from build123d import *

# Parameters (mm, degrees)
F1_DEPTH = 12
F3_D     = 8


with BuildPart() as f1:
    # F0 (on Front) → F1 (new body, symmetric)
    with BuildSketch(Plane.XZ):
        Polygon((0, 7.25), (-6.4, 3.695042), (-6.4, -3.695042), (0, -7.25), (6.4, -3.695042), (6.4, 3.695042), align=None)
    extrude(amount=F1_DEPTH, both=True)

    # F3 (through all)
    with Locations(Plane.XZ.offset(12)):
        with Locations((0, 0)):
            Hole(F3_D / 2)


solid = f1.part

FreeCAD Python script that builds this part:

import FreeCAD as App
import Part
import Sketcher

V = App.Vector


def add_polygon(sketch, points):
    """Adds a closed chain of lines whose ends are joined by coincident constraints."""
    first, n = sketch.GeometryCount, len(points)
    for a, b in zip(points, points[1:] + points[:1]):
        sketch.addGeometry(Part.LineSegment(App.Vector(*a, 0), App.Vector(*b, 0)), False)
    for i in range(n):
        sketch.addConstraint(Sketcher.Constraint("Coincident", first + i, 2, first + (i + 1) % n, 1))

doc = App.newDocument("Part")
params = doc.addObject("Spreadsheet::Sheet", "Params")
for row, (alias, value) in enumerate([
    ("pad1_length", "24 mm"),
    ("sketch2_diameter", "8 mm"),
    ("hole_diameter", "8 mm"),
], start=1):
    params.set(f"A{row}", alias)
    params.set(f"B{row}", "=" + value)
    params.setAlias(f"B{row}", alias)

body = doc.addObject("PartDesign::Body", "Body")

# Sketch on XZ plane
sketch1 = body.newObject("Sketcher::SketchObject", "Sketch")
sketch1.AttachmentSupport = (doc.getObject("XZ_Plane"), [""])
sketch1.MapMode = "FlatFace"
add_polygon(sketch1, [(0, 7.25), (-6.4, 3.695042), (-6.4, -3.695042), (0, -7.25), (6.4, -3.695042), (6.4, 3.695042)])  # lines 0-5
sketch1.addConstraint([
    Sketcher.Constraint("Vertical", 1),
    Sketcher.Constraint("Vertical", 4),
    Sketcher.Constraint("Symmetric", 0, 2, 3, 2, -1, 1),
    Sketcher.Constraint("Symmetric", 2, 2, 5, 2, -1, 1),
    Sketcher.Constraint("PointOnObject", 2, 2, -2),
    Sketcher.Constraint("Parallel", 2, 5),
    Sketcher.Constraint("Horizontal", 1, 2, 3, 2),
    Sketcher.Constraint("DistanceX", 0, 2, -1, 1, 6.4),
    Sketcher.Constraint("DistanceY", 2, 2, 5, 2, 14.5),
    Sketcher.Constraint("DistanceY", 1, 2, 1, 1, 7.390084),
])
pad1 = body.newObject("PartDesign::Pad", "Pad")
pad1.Profile = sketch1
pad1.setExpression("Length", "Params.pad1_length")
pad1.Midplane = True

# Sketch on XZ plane
sketch2 = body.newObject("Sketcher::SketchObject", "Sketch001")
sketch2.AttachmentSupport = (doc.getObject("XZ_Plane"), [""])
sketch2.MapMode = "FlatFace"
sketch2.AttachmentOffset = App.Placement(V(0, 0, 12), App.Rotation())
sketch2.addGeometry(Part.Circle(V(0, 0, 0), V(0, 0, 1), 4), False)
sketch2.addConstraint([
    Sketcher.Constraint("Coincident", 0, 3, -1, 1),
    Sketcher.Constraint("Diameter", 0, 8.0),
])
sketch2.setExpression("Constraints[1]", "Params.sketch2_diameter")
doc.recompute()
hole = body.newObject("PartDesign::Hole", "Hole")
hole.Profile = sketch2
hole.ThreadType = "None"
hole.setExpression("Diameter", "Params.hole_diameter")
hole.DepthType = "ThroughAll"

doc.recompute()
